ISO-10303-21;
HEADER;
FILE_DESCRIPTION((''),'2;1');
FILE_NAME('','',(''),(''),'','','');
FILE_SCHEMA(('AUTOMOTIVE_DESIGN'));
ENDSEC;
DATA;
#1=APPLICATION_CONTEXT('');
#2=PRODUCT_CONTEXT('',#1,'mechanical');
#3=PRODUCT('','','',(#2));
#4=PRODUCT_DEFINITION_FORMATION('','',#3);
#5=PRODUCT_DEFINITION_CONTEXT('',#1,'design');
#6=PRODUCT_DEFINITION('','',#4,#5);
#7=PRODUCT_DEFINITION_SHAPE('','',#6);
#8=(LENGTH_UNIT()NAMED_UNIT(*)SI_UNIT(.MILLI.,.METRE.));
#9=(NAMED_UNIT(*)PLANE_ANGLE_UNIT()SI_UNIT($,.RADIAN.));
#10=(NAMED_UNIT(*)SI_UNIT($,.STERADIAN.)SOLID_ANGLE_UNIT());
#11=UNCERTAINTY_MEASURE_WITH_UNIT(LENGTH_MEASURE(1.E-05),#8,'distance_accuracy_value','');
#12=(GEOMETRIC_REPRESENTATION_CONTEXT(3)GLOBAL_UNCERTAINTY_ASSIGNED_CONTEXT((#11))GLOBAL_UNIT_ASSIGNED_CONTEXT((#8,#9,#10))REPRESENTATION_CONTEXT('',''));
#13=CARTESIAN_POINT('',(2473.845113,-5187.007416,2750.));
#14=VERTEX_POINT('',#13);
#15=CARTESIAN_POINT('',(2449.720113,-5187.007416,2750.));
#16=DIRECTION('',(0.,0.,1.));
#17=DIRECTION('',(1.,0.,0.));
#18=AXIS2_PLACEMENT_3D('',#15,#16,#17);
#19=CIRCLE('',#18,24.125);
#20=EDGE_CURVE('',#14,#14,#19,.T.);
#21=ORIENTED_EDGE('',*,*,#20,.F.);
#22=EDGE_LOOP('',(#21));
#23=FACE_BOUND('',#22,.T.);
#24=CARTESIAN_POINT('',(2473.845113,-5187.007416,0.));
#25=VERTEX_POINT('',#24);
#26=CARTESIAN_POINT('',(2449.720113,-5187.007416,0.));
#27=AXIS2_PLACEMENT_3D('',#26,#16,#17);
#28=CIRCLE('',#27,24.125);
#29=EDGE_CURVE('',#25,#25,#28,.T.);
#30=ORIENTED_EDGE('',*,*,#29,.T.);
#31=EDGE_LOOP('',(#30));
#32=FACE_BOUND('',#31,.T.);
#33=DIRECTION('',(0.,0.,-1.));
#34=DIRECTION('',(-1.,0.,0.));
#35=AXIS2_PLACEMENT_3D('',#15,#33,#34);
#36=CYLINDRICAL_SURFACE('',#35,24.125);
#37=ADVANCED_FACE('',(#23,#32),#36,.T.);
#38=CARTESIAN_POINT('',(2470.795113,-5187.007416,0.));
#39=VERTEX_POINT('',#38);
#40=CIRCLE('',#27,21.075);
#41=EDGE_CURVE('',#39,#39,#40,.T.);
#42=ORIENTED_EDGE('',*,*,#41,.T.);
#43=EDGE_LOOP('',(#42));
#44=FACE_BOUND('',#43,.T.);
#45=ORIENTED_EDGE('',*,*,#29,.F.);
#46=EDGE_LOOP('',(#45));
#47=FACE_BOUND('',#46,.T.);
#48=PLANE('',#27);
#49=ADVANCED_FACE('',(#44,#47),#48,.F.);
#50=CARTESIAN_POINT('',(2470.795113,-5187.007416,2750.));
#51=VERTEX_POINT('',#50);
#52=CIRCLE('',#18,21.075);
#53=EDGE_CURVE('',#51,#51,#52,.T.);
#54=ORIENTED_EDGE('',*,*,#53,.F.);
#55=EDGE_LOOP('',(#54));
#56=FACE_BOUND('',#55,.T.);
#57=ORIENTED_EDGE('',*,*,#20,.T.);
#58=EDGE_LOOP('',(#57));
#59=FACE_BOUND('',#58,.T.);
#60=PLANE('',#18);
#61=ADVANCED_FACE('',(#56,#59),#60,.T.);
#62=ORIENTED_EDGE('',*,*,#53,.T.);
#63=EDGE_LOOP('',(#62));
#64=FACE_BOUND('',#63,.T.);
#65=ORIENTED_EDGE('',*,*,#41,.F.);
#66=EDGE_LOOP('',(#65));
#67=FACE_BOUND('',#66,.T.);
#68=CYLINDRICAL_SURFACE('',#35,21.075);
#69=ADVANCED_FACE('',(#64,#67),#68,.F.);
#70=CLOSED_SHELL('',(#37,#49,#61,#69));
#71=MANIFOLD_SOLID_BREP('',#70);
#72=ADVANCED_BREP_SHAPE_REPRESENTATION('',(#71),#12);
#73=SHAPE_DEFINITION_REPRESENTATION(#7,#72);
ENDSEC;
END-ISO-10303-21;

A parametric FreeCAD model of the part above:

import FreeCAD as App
import Part
import Sketcher

doc = App.newDocument("Part")
body = doc.addObject("PartDesign::Body", "Body")

sketch1 = body.newObject("Sketcher::SketchObject", "Sketch")
sketch1.AttachmentSupport = (doc.getObject("XY_Plane"), [""])
sketch1.MapMode = "FlatFace"
sketch1.addGeometry(Part.Circle(App.Vector(2450, -5187, 0), App.Vector(0, 0, 1), 24), False)
sketch1.addGeometry(Part.Circle(App.Vector(2450, -5187, 0), App.Vector(0, 0, 1), 21), False)
sketch1.addConstraint(Sketcher.Constraint("Coincident", 1, 3, 0, 3))
sketch1.addConstraint(Sketcher.Constraint("Diameter", 0, 48.25))
sketch1.addConstraint(Sketcher.Constraint("Diameter", 1, 42.15))
sketch1.addConstraint(Sketcher.Constraint("DistanceX", -1, 1, 0, 3, 2449.720113))
sketch1.addConstraint(Sketcher.Constraint("DistanceY", 0, 3, -1, 1, 5187.007416))
pad1 = body.newObject("PartDesign::Pad", "Pad")
pad1.Profile = sketch1
pad1.Length = 2750

doc.recompute()
